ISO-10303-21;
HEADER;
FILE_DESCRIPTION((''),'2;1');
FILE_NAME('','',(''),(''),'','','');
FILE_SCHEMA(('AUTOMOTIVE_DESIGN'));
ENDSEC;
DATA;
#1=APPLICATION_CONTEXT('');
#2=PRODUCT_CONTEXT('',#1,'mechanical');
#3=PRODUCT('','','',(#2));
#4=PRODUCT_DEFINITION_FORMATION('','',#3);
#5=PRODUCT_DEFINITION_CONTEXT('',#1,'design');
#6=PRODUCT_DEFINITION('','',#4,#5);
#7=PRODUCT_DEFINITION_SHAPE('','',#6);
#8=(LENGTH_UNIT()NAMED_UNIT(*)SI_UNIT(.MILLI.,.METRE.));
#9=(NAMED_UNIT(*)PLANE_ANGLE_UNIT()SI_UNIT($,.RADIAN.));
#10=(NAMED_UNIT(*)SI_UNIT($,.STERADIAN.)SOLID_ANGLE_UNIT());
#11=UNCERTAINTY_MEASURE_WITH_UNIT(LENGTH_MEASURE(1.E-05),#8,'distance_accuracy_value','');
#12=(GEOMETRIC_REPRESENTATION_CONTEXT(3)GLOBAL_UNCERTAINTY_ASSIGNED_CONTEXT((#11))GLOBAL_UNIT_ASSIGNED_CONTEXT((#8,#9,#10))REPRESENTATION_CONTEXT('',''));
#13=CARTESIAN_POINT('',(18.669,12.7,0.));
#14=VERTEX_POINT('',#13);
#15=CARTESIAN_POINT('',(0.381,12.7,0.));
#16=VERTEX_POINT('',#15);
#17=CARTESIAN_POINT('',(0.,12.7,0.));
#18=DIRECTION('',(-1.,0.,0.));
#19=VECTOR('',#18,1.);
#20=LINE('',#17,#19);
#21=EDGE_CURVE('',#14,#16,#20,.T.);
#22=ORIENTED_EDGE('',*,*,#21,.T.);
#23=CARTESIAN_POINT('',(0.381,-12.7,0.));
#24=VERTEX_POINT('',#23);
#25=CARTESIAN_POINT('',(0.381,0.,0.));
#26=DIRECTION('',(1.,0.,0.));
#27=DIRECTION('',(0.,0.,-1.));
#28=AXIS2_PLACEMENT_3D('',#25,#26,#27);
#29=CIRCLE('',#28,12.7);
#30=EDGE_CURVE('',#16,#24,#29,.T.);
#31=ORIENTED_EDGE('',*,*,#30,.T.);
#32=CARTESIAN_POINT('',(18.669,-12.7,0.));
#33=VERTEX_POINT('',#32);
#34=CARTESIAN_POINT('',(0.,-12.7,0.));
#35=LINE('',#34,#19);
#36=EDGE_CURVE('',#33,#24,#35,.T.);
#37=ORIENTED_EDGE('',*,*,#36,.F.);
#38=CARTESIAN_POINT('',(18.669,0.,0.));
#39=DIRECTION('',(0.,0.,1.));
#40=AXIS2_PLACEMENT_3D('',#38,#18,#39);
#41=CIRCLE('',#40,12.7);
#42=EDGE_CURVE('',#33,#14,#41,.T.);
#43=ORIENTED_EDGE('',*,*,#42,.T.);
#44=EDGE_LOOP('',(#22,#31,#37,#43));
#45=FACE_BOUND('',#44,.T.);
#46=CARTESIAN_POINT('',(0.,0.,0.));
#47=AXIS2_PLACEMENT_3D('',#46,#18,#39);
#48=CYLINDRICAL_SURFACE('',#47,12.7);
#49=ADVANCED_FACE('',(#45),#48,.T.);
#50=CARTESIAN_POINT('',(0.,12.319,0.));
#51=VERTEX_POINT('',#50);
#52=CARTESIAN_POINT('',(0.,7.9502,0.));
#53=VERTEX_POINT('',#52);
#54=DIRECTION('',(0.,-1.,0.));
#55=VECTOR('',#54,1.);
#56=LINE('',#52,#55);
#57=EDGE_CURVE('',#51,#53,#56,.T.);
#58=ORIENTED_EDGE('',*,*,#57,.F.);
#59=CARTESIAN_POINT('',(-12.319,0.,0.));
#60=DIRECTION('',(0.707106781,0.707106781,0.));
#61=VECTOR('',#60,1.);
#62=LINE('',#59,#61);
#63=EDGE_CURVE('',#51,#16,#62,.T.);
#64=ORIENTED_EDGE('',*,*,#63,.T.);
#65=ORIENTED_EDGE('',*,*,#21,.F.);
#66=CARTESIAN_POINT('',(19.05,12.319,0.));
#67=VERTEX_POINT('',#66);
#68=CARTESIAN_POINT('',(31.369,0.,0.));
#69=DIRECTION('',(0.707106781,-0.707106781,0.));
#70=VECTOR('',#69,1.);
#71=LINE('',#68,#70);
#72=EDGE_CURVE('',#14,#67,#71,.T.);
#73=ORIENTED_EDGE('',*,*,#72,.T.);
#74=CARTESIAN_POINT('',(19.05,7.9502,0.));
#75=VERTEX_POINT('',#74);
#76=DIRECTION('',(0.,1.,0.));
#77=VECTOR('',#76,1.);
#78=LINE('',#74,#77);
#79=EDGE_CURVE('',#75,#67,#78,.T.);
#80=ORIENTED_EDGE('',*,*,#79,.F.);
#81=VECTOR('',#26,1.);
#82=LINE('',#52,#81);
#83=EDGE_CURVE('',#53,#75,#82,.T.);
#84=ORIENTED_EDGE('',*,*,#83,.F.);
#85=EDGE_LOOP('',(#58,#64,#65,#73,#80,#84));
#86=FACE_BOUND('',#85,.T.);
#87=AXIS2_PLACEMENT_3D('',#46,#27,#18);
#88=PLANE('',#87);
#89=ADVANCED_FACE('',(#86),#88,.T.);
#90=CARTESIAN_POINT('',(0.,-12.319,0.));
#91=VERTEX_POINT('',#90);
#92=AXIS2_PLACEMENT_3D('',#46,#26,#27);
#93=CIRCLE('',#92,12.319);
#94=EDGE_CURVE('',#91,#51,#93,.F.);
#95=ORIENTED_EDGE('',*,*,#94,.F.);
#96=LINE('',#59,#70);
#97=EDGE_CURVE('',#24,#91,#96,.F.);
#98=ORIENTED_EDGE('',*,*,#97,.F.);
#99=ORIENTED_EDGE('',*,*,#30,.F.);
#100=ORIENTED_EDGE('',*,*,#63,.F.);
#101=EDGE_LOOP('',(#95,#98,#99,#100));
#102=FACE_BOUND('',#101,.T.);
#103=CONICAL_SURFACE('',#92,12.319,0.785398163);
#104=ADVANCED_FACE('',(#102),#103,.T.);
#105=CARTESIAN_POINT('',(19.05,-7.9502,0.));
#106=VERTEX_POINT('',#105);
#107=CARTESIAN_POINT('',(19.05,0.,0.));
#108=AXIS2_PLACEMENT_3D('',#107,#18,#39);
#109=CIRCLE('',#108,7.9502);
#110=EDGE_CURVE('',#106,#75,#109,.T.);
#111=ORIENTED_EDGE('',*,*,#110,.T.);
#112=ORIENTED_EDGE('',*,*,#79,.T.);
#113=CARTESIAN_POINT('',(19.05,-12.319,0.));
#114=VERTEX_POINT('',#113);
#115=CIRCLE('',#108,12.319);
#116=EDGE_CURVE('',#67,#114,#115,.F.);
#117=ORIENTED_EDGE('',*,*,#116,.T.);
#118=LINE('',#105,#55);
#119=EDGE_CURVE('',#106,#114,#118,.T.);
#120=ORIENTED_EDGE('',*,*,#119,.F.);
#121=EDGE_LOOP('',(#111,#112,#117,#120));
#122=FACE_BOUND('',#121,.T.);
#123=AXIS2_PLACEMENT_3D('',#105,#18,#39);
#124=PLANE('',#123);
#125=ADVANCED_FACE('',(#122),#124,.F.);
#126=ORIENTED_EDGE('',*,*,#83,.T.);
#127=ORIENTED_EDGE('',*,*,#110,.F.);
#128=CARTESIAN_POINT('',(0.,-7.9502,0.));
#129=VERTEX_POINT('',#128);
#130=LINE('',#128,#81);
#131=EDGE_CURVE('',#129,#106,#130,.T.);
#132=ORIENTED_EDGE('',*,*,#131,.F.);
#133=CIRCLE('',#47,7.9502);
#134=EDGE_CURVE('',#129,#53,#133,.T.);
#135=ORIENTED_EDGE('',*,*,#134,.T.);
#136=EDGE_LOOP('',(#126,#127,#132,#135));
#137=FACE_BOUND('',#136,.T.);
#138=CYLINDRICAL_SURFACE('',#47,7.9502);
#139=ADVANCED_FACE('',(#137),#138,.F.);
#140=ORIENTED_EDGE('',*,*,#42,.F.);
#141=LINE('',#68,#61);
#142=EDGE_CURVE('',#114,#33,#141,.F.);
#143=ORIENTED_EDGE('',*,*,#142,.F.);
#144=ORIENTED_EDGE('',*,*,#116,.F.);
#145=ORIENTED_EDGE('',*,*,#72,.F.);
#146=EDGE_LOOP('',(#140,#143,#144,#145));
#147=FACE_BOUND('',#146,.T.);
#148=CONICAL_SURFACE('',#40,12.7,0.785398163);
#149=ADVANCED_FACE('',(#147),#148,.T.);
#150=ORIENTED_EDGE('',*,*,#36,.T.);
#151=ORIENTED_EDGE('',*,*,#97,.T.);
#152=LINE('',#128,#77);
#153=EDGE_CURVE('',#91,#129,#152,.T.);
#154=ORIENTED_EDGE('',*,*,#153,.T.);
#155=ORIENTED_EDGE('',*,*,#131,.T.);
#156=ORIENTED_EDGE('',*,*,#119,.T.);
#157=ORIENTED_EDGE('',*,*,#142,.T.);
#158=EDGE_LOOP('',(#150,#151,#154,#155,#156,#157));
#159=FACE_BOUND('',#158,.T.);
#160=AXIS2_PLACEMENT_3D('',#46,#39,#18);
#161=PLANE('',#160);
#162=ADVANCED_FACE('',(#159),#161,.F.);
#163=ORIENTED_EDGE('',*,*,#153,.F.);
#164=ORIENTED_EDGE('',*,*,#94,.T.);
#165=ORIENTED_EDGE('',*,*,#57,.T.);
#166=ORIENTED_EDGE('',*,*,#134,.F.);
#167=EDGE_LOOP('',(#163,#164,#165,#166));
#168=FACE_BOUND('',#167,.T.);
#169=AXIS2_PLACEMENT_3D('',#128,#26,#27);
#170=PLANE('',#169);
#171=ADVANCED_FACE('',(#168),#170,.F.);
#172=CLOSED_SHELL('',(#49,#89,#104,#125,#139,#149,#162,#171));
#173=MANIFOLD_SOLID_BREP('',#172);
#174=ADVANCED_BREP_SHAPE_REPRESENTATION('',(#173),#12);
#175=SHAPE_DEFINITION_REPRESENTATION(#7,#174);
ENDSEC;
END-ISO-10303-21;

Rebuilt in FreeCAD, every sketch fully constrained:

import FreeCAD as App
import Part
import Sketcher
from FreeCAD import Vector
Q = App.Units.Quantity


def edges_at(feature, points):
    """Names of the edges that pass closest to the given points."""
    edges = feature.Shape.Edges
    near = lambda p: min(range(len(edges)), key=lambda i: edges[i].distToShape(Part.Vertex(*p))[0])
    return sorted({f"Edge{near(p) + 1}" for p in points})


def add_polygon(sketch, points):
    """Adds a closed chain of lines whose ends are joined by coincident constraints."""
    first, n = sketch.GeometryCount, len(points)
    for a, b in zip(points, points[1:] + points[:1]):
        sketch.addGeometry(Part.LineSegment(App.Vector(*a, 0), App.Vector(*b, 0)), False)
    for i in range(n):
        sketch.addConstraint(Sketcher.Constraint("Coincident", first + i, 2, first + (i + 1) % n, 1))

doc = App.newDocument("Part")
body = doc.addObject("PartDesign::Body", "Body")

# Sketch on XY plane
sketch1 = body.newObject("Sketcher::SketchObject", "Sketch")
sketch1.AttachmentSupport = (doc.getObject("XY_Plane"), [""])
sketch1.MapMode = "FlatFace"
add_polygon(sketch1, [(0, 12.7), (0, 8), (19.1, 8), (19.1, 12.7)])  # lines 0-3
sketch1.addConstraint([
    Sketcher.Constraint("Vertical", 0),
    Sketcher.Constraint("Horizontal", 1),
    Sketcher.Constraint("Vertical", 2),
    Sketcher.Constraint("Horizontal", 3),
    Sketcher.Constraint("PointOnObject", 0, 2, -2),
    Sketcher.Constraint("DistanceX", 1, 1, 1, 2, Q("0.75 in")),
    Sketcher.Constraint("DistanceY", -1, 1, 2, 2, Q("0.5 in")),
    Sketcher.Constraint("DistanceY", 0, 2, 0, 1, Q("0.187 in")),
])
revolution = body.newObject("PartDesign::Revolution", "Revolution")
revolution.Profile = sketch1
revolution.ReferenceAxis = (sketch1, ["H_Axis"])
revolution.Angle = 180
doc.recompute()

chamfer = body.newObject("PartDesign::Chamfer", "Chamfer")
chamfer.Base = (revolution, edges_at(revolution, [(19.05, 0, 12.7), (0, 0, 12.7)]))
chamfer.Size = Q("0.015 in")

doc.recompute()
